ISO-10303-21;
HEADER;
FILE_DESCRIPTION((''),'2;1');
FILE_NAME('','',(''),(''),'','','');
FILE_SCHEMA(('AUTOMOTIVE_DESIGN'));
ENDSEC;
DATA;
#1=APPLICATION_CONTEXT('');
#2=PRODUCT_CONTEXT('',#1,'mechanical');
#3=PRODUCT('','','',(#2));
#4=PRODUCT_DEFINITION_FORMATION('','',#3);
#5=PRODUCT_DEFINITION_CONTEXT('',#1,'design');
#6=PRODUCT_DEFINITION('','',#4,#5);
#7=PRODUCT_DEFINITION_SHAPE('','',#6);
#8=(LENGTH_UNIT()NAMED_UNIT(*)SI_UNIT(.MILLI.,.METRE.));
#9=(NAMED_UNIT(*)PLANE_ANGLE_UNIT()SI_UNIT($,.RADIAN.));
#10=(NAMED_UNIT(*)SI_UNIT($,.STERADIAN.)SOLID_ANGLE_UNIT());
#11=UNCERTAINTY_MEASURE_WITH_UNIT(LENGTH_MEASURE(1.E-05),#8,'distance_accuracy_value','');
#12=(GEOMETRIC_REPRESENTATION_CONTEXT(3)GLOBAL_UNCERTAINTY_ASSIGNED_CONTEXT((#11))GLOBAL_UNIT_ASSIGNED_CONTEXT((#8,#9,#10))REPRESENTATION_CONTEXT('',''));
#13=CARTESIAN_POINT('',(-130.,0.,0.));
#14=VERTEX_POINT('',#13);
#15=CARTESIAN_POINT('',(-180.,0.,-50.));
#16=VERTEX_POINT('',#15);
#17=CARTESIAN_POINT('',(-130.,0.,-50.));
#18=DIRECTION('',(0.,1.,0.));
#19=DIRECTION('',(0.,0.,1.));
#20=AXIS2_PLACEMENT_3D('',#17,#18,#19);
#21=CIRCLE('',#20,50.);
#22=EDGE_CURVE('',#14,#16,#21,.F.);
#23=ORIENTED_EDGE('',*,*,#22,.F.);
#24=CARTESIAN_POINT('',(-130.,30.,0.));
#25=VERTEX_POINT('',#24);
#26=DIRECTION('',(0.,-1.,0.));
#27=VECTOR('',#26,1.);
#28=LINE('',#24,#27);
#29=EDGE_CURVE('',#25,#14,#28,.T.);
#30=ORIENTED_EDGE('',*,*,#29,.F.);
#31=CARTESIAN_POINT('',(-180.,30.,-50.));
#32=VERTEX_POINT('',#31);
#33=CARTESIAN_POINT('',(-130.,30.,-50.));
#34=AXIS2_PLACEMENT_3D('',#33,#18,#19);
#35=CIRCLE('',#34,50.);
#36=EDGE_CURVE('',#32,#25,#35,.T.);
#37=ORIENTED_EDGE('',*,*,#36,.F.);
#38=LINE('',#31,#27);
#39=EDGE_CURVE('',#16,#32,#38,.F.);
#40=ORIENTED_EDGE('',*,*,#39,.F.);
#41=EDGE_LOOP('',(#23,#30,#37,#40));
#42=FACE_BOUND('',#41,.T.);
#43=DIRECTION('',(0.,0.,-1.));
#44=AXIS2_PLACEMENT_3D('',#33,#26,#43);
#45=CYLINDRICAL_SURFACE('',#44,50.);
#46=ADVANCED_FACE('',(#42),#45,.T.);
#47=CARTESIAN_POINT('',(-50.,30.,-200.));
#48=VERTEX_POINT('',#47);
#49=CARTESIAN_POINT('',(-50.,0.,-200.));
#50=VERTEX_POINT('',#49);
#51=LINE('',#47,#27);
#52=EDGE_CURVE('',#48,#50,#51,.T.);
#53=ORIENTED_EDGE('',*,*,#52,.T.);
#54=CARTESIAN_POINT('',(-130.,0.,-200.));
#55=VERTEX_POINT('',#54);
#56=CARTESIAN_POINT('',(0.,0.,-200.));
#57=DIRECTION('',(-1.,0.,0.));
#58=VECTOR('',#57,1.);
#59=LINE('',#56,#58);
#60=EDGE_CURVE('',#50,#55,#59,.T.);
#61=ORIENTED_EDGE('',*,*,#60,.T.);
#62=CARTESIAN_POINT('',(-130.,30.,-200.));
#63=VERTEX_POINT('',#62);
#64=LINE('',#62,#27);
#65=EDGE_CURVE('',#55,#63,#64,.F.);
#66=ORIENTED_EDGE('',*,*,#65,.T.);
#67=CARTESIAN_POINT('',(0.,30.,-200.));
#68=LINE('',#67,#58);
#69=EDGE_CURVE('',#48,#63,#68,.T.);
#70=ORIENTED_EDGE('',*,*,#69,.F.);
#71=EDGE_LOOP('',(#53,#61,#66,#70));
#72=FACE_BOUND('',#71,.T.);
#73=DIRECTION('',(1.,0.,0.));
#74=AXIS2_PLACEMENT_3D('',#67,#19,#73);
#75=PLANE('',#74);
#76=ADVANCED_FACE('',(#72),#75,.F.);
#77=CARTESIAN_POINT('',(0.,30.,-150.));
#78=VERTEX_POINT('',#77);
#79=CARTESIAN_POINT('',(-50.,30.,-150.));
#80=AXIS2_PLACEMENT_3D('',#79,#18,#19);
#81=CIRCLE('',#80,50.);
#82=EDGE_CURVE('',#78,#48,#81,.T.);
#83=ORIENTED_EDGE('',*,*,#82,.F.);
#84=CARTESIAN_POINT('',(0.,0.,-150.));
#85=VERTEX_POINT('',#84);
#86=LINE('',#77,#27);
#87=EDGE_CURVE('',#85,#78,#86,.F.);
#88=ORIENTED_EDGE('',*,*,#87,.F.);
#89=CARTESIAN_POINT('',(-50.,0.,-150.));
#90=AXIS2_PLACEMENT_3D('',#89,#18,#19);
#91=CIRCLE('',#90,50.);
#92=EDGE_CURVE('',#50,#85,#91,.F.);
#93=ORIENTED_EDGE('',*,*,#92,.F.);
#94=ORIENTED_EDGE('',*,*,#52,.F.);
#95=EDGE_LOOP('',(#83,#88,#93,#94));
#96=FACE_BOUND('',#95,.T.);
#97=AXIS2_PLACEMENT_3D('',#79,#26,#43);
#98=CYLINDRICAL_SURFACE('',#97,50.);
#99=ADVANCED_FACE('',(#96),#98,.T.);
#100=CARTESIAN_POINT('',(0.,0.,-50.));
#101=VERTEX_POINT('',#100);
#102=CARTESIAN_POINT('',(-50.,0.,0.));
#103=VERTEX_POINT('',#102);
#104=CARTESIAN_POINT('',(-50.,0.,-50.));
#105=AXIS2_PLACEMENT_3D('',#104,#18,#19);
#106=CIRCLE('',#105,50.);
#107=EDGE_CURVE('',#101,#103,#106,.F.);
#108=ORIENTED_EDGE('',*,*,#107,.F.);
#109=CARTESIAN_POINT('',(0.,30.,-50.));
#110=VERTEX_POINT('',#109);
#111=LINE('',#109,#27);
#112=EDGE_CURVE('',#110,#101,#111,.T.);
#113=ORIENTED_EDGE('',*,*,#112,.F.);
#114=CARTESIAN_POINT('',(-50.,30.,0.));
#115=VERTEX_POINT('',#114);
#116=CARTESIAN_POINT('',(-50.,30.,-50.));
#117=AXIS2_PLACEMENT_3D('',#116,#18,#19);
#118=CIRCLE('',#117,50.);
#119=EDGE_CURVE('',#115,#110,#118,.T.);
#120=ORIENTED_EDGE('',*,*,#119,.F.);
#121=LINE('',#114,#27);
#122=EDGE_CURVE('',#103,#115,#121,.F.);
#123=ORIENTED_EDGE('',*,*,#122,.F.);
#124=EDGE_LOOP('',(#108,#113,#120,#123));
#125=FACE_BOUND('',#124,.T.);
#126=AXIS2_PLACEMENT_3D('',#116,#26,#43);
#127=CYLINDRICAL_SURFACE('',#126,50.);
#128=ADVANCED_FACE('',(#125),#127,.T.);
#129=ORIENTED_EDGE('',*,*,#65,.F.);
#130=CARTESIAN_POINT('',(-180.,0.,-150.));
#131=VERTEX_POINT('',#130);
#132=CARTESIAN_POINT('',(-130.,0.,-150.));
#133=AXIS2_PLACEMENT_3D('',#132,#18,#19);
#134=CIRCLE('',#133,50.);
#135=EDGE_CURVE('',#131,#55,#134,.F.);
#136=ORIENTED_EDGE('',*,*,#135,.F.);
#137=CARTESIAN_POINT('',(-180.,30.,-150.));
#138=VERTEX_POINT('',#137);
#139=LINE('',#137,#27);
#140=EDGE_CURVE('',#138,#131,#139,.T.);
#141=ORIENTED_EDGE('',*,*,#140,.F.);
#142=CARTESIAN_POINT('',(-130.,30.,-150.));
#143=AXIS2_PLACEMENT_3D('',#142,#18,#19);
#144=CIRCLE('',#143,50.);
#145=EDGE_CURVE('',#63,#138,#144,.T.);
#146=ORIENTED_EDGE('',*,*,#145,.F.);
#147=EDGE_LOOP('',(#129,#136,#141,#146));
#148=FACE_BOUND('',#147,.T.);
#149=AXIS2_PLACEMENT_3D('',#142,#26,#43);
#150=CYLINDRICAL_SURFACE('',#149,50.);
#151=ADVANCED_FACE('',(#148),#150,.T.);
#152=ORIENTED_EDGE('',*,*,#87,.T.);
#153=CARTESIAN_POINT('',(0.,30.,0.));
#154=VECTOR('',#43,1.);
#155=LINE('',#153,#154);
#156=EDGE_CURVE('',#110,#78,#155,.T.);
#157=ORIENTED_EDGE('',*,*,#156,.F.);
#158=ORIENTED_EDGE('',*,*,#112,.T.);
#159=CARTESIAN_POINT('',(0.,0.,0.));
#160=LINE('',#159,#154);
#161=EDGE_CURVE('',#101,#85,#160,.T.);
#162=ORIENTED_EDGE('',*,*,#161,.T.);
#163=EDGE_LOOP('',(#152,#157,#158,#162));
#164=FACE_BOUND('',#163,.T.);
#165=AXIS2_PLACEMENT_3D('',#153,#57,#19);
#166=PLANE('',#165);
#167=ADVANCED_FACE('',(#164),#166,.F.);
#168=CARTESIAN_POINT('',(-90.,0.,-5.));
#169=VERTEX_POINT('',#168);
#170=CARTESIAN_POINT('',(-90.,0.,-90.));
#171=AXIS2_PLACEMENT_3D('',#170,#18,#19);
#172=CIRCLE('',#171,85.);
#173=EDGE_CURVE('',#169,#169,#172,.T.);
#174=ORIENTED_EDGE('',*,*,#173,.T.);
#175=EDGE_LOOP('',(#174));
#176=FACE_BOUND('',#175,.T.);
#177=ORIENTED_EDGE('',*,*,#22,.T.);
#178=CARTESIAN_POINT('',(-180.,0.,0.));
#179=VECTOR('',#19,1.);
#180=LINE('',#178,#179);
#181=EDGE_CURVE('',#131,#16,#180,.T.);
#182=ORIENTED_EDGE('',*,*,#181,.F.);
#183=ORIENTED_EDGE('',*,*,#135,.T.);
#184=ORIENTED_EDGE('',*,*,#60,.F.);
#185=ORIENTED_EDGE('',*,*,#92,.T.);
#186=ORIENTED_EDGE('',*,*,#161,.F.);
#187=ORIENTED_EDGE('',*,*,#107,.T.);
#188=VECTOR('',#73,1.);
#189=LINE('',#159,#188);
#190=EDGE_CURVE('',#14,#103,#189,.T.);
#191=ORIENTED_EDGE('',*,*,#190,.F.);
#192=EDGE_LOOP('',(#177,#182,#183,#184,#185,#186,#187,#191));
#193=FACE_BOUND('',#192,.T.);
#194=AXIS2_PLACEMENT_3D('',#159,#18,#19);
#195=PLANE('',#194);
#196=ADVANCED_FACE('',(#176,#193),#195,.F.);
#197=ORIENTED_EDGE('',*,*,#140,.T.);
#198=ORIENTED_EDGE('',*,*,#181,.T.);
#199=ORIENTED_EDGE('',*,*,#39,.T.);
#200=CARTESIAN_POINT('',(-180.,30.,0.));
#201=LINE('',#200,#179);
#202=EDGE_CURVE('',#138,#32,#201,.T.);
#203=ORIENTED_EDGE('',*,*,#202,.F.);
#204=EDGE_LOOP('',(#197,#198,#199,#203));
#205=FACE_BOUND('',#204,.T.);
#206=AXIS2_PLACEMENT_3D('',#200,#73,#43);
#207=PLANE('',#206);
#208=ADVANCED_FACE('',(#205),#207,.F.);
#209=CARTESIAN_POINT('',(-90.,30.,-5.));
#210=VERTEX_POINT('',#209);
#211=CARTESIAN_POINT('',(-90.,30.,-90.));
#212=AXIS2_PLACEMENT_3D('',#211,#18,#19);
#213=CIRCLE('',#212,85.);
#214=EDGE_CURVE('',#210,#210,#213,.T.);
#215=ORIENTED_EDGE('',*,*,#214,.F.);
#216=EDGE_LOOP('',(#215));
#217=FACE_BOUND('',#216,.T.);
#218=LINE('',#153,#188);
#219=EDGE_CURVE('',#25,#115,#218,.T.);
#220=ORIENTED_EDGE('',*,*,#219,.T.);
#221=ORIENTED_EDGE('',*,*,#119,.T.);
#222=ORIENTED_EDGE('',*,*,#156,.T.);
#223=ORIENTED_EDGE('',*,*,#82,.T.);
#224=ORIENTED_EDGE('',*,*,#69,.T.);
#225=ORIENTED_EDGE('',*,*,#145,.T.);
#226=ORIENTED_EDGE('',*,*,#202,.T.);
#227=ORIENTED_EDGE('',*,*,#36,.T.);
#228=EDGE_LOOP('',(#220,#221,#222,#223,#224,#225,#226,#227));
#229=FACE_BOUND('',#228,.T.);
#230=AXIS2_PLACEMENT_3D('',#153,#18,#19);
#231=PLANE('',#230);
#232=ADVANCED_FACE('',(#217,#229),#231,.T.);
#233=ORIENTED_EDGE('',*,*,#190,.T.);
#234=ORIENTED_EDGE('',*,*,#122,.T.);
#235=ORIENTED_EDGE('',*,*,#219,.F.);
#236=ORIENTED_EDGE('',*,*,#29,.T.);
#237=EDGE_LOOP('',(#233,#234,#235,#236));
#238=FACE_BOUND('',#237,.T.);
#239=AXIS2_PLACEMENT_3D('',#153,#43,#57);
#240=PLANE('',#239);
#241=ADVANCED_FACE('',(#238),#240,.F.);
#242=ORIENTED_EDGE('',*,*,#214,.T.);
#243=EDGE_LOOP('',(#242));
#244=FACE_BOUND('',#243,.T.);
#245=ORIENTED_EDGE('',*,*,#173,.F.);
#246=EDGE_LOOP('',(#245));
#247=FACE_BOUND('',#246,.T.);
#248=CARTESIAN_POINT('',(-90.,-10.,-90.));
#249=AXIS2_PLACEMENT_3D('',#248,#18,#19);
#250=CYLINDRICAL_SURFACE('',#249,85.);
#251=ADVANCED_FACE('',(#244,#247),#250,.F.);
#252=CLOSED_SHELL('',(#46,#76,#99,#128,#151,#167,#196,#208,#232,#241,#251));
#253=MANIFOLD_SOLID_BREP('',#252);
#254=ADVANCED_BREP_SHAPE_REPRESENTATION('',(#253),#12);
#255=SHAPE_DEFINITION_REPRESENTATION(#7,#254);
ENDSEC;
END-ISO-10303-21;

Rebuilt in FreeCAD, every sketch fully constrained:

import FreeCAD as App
import Part
import Sketcher
Q = App.Units.Quantity


def edges_at(feature, points):
    """Names of the edges that pass closest to the given points."""
    edges = feature.Shape.Edges
    near = lambda p: min(range(len(edges)), key=lambda i: edges[i].distToShape(Part.Vertex(*p))[0])
    return sorted({f"Edge{near(p) + 1}" for p in points})

doc = App.newDocument("Part")
body = doc.addObject("PartDesign::Body", "Body")

sketch1 = body.newObject("Sketcher::SketchObject", "Sketch")
sketch1.AttachmentSupport = (doc.getObject("XZ_Plane"), [""])
sketch1.MapMode = "FlatFace"
sketch1.addGeometry(Part.LineSegment(App.Vector(-180, -200, 0), App.Vector(-180, 0, 0)), False)
sketch1.addGeometry(Part.LineSegment(App.Vector(-180, 0, 0), App.Vector(0, 0, 0)), False)
sketch1.addGeometry(Part.LineSegment(App.Vector(0, 0, 0), App.Vector(0, -200, 0)), False)
sketch1.addGeometry(Part.LineSegment(App.Vector(0, -200, 0), App.Vector(-180, -200, 0)), False)
sketch1.addConstraint(Sketcher.Constraint("Coincident", 0, 2, 1, 1))
sketch1.addConstraint(Sketcher.Constraint("Coincident", 1, 2, 2, 1))
sketch1.addConstraint(Sketcher.Constraint("Coincident", 2, 2, 3, 1))
sketch1.addConstraint(Sketcher.Constraint("Coincident", 3, 2, 0, 1))
sketch1.addConstraint(Sketcher.Constraint("Vertical", 0))
sketch1.addConstraint(Sketcher.Constraint("Horizontal", 1))
sketch1.addConstraint(Sketcher.Constraint("Vertical", 2))
sketch1.addConstraint(Sketcher.Constraint("Horizontal", 3))
sketch1.addConstraint(Sketcher.Constraint("Coincident", 1, 2, -1, 1))
sketch1.addConstraint(Sketcher.Constraint("DistanceX", 1, 1, 1, 2, Q("180 mm")))
sketch1.addConstraint(Sketcher.Constraint("DistanceY", 0, 1, 0, 2, Q("200 mm")))
pad1 = body.newObject("PartDesign::Pad", "Pad")
pad1.Profile = sketch1
pad1.Length = 30
pad1.Reversed = True

sketch2 = body.newObject("Sketcher::SketchObject", "Sketch001")
sketch2.AttachmentSupport = (doc.getObject("XZ_Plane"), [""])
sketch2.MapMode = "FlatFace"
sketch2.AttachmentOffset = App.Placement(App.Vector(0, 0, -30), App.Rotation())
sketch2.addGeometry(Part.Circle(App.Vector(-90, -90, 0), App.Vector(0, 0, 1), 85), False)
sketch2.addConstraint(Sketcher.Constraint("Diameter", 0, Q("170 mm")))
sketch2.addConstraint(Sketcher.Constraint("DistanceX", 0, 3, -1, 1, Q("90 mm")))
sketch2.addConstraint(Sketcher.Constraint("DistanceY", 0, 3, -1, 1, Q("90 mm")))
pocket1 = body.newObject("PartDesign::Pocket", "Pocket")
pocket1.Profile = sketch2
pocket1.Length = 40
pocket1.Reversed = True
doc.recompute()

fillet = body.newObject("PartDesign::Fillet", "Fillet")
fillet.Base = (pocket1, edges_at(pocket1, [(0, 15, -200)]))
fillet.Radius = 50
doc.recompute()

fillet2 = body.newObject("PartDesign::Fillet", "Fillet001")
fillet2.Base = (fillet, edges_at(fillet, [(0, 15, 0)]))
fillet2.Radius = 50
doc.recompute()

fillet3 = body.newObject("PartDesign::Fillet", "Fillet002")
fillet3.Base = (fillet2, edges_at(fillet2, [(-180, 15, 0)]))
fillet3.Radius = 50
doc.recompute()

fillet4 = body.newObject("PartDesign::Fillet", "Fillet003")
fillet4.Base = (fillet3, edges_at(fillet3, [(-180, 15, -200)]))
fillet4.Radius = 50

doc.recompute()
